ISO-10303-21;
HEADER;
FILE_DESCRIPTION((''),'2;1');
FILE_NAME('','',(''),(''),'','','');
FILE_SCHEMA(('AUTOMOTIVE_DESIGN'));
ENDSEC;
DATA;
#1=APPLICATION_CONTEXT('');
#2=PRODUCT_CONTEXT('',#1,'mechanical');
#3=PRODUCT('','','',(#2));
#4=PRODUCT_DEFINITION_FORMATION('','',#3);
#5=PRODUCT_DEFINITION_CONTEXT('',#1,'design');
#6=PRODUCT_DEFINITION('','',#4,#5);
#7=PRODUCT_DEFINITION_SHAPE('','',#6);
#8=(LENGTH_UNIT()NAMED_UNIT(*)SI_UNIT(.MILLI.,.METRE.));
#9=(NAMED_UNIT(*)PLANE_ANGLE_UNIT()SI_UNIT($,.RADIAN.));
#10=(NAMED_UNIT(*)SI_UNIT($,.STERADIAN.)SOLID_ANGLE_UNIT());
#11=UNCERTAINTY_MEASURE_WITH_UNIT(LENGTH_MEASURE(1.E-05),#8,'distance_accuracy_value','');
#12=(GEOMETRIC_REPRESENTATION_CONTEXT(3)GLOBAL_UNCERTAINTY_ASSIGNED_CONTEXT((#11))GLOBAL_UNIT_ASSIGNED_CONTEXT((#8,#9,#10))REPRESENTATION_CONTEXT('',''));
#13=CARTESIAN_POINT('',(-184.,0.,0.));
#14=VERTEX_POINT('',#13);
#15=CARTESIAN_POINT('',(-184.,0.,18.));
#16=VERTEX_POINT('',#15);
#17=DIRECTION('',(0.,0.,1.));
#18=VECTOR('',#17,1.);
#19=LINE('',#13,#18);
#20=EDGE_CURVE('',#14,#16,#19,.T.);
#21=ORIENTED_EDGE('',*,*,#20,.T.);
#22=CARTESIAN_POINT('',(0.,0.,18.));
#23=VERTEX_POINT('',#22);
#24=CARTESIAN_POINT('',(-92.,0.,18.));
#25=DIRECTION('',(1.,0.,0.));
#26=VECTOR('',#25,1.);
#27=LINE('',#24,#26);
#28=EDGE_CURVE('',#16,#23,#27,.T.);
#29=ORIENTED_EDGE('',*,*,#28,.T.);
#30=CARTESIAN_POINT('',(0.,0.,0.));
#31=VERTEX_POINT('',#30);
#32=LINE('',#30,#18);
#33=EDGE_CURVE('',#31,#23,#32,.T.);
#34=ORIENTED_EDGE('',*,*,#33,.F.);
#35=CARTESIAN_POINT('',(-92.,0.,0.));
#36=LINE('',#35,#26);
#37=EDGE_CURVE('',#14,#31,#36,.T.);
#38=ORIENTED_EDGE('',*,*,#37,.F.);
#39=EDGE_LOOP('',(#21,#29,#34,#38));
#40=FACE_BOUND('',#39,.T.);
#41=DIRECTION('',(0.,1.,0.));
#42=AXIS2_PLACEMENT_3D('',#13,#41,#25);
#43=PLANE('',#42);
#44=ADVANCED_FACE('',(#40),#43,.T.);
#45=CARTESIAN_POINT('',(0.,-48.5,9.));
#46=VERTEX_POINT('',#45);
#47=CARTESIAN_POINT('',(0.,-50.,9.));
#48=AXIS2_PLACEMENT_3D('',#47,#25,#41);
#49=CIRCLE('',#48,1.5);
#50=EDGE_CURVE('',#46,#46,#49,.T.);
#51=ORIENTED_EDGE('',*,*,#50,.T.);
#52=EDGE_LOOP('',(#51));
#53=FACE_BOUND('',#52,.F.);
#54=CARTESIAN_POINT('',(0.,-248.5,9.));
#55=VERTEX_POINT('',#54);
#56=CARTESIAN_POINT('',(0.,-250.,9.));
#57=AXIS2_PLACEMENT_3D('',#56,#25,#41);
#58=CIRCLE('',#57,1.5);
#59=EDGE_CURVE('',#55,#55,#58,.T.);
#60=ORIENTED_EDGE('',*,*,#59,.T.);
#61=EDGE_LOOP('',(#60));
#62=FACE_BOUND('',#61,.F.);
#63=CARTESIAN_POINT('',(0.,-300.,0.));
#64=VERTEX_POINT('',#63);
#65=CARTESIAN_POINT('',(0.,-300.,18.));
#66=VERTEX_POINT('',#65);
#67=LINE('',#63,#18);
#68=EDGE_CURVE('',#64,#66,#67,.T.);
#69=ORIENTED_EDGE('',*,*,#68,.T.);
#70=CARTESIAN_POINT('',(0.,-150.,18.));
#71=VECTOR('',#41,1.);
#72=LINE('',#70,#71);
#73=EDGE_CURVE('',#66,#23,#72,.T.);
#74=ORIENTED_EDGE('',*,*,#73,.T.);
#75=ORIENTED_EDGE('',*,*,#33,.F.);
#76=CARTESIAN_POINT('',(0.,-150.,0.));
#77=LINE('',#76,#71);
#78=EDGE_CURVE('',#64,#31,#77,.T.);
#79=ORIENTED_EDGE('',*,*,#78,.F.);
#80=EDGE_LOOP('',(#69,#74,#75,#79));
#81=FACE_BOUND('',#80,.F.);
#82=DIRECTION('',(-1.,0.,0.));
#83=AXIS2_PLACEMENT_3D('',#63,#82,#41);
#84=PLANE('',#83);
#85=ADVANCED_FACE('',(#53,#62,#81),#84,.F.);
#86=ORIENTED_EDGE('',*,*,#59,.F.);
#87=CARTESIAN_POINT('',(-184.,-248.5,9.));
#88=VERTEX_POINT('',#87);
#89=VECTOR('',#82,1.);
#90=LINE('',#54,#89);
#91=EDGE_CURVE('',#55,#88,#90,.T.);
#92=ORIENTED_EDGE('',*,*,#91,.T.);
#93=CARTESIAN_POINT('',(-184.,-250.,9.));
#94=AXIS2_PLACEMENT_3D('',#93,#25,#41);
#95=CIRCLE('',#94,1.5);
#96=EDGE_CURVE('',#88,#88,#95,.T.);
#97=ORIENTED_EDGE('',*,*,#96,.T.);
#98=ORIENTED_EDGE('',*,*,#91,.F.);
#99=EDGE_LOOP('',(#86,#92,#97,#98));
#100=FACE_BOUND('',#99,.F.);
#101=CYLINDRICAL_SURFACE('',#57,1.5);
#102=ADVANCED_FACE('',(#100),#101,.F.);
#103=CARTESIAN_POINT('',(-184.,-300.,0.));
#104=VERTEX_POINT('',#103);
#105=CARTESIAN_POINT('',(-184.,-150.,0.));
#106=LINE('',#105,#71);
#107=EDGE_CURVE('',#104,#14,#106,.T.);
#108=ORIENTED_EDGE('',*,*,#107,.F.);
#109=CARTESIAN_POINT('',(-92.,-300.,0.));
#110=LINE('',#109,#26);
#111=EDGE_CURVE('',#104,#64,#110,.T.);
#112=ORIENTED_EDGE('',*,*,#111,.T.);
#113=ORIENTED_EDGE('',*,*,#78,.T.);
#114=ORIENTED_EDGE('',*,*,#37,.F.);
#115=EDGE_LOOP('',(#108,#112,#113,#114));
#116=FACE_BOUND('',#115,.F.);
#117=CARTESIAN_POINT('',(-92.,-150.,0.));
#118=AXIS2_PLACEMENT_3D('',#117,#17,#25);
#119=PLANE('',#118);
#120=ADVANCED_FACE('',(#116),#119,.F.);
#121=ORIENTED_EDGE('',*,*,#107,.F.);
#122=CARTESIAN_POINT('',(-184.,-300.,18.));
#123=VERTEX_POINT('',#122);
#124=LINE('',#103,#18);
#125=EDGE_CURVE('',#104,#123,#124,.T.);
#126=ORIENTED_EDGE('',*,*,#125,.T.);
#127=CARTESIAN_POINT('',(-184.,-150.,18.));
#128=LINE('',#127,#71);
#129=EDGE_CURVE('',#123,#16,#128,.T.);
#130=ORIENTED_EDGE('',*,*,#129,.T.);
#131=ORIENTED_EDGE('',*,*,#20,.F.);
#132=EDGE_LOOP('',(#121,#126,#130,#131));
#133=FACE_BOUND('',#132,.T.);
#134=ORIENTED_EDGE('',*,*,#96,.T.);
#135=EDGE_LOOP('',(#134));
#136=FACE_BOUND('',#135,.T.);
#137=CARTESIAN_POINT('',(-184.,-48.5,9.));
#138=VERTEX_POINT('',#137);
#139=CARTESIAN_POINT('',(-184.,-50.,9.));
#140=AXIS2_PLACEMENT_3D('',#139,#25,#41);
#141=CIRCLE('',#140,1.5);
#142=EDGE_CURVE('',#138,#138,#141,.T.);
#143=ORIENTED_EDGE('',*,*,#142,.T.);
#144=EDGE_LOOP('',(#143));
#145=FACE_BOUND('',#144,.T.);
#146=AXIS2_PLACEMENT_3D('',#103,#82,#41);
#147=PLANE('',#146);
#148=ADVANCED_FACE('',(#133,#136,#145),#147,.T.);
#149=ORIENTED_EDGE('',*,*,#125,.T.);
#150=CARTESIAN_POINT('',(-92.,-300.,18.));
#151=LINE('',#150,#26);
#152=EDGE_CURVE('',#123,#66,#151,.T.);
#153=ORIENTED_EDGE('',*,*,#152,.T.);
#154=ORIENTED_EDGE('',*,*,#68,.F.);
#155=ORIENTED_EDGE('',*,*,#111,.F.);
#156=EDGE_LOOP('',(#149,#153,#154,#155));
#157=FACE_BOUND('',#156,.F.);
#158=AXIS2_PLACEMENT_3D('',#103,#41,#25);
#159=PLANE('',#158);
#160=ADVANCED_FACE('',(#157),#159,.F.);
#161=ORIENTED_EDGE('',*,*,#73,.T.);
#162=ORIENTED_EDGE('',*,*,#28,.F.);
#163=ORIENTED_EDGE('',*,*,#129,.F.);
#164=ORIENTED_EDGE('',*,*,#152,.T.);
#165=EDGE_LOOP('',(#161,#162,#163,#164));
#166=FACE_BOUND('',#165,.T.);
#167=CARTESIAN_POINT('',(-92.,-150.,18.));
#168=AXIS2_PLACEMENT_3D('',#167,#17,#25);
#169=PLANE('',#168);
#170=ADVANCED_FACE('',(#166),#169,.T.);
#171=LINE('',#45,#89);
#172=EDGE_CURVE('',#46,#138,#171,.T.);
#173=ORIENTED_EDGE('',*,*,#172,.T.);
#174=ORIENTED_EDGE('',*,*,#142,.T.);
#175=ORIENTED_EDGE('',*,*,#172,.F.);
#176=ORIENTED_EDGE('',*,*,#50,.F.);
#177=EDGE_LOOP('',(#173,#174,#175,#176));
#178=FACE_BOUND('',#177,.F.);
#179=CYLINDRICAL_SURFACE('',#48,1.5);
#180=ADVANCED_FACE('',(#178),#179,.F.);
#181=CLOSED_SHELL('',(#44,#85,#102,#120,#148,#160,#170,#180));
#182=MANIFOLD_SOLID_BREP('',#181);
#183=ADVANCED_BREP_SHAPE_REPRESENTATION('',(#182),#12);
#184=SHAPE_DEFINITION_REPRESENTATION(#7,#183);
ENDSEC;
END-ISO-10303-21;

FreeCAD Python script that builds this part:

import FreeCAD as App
import Part
import Sketcher

V = App.Vector


def add_polygon(sketch, points):
    """Adds a closed chain of lines whose ends are joined by coincident constraints."""
    first, n = sketch.GeometryCount, len(points)
    for a, b in zip(points, points[1:] + points[:1]):
        sketch.addGeometry(Part.LineSegment(App.Vector(*a, 0), App.Vector(*b, 0)), False)
    for i in range(n):
        sketch.addConstraint(Sketcher.Constraint("Coincident", first + i, 2, first + (i + 1) % n, 1))

doc = App.newDocument("Part")
body = doc.addObject("PartDesign::Body", "Body")

# Sketch on XY plane
sketch1 = body.newObject("Sketcher::SketchObject", "Sketch")
sketch1.AttachmentSupport = (doc.getObject("XY_Plane"), [""])
sketch1.MapMode = "FlatFace"
add_polygon(sketch1, [(-184, 0), (-184, -300), (0, -300), (0, 0)])  # lines 0-3
sketch1.addConstraint(Sketcher.Constraint("Vertical", 0))
sketch1.addConstraint(Sketcher.Constraint("Horizontal", 1))
sketch1.addConstraint(Sketcher.Constraint("Vertical", 2))
sketch1.addConstraint(Sketcher.Constraint("Horizontal", 3))
sketch1.addConstraint(Sketcher.Constraint("Coincident", 2, 2, -1, 1))
sketch1.addConstraint(Sketcher.Constraint("DistanceX", 1, 1, 1, 2, 184.0))
sketch1.addConstraint(Sketcher.Constraint("DistanceY", 0, 2, 0, 1, 300.0))
pad1 = body.newObject("PartDesign::Pad", "Pad")
pad1.Profile = sketch1
pad1.Length = 18

# Sketch on YZ plane
sketch2 = body.newObject("Sketcher::SketchObject", "Sketch001")
sketch2.AttachmentSupport = (doc.getObject("YZ_Plane"), [""])
sketch2.MapMode = "FlatFace"
sketch2.addGeometry(Part.Circle(V(-250, 9, 0), V(0, 0, 1), 1.5), False)
sketch2.addGeometry(Part.Circle(V(-50, 9, 0), V(0, 0, 1), 1.5), False)
sketch2.addConstraint(Sketcher.Constraint("Equal", 0, 1))
sketch2.addConstraint(Sketcher.Constraint("Horizontal", 0, 3, 1, 3))
sketch2.addConstraint(Sketcher.Constraint("Diameter", 0, 3.0))
sketch2.addConstraint(Sketcher.Constraint("DistanceX", 0, 3, -1, 1, 250.0))
sketch2.addConstraint(Sketcher.Constraint("DistanceY", -1, 1, 0, 3, 9.0))
sketch2.addConstraint(Sketcher.Constraint("DistanceX", 1, 3, -1, 1, 50.0))
pocket1 = body.newObject("PartDesign::Pocket", "Pocket")
pocket1.Profile = sketch2
pocket1.Type = "ThroughAll"

doc.recompute()
